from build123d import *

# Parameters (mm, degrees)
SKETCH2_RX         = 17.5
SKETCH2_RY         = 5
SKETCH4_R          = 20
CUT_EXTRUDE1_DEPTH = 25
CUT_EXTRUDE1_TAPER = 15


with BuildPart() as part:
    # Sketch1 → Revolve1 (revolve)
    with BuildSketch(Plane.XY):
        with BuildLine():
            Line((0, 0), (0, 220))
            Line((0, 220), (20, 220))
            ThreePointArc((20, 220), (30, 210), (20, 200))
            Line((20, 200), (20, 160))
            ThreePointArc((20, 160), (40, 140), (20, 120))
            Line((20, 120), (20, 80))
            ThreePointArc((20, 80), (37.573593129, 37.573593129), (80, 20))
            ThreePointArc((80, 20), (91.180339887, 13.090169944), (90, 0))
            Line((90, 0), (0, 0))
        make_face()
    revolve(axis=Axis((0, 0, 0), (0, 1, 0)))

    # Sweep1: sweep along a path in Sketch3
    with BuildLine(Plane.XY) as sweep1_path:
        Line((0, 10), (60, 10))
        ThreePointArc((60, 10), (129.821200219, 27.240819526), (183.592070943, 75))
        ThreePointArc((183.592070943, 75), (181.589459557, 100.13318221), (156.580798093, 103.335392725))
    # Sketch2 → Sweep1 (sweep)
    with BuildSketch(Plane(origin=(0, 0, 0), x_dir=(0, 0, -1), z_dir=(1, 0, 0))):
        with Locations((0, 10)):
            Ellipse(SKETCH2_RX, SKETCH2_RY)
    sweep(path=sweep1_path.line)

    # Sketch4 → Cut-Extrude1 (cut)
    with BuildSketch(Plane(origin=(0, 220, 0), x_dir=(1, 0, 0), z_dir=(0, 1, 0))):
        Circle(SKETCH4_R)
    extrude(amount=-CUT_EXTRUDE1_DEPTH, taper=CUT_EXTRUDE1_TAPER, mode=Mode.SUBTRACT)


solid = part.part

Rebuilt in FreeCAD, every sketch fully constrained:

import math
import FreeCAD as App
import Part
import Sketcher

doc = App.newDocument("Part")
params = doc.addObject("Spreadsheet::Sheet", "Params")
for row, (alias, value) in enumerate([
    ("sketch1_radius", "60 mm"),
    ("sketch1_radius2", "20 mm"),
    ("sketch1_radius3", "10 mm"),
    ("sketch1_radius4", "12.5 mm"),
    ("sketch1_width", "90 mm"),
    ("revolution_angle", "360 deg"),
    ("sketch3_radius", "150 mm"),
    ("sketch3_radius2", "20 mm"),
    ("sketch3_width", "60 mm"),
    ("sketch4_diameter", "40 mm"),
    ("pocket1_length", "25 mm"),
    ("pocket1_taper", "-15 deg"),
], start=1):
    params.set(f"A{row}", alias)
    params.set(f"B{row}", "=" + value)
    params.setAlias(f"B{row}", alias)

body = doc.addObject("PartDesign::Body", "Body")

sketch1 = doc.addObject("Sketcher::SketchObject", "Sketch")
body.addObject(sketch1)
sketch1.AttachmentSupport = (doc.XY_Plane, [""])
sketch1.MapMode = "FlatFace"
sketch1.addGeometry(Part.LineSegment(App.Vector(0, 220, 0), App.Vector(0, 0, 0)), False)
sketch1.addGeometry(Part.LineSegment(App.Vector(0, 0, 0), App.Vector(90, 0, 0)), False)
sketch1.addGeometry(Part.ArcOfCircle(Part.Circle(App.Vector(80, 8, 0), App.Vector(0, 0, 1), 12), math.radians(-37), math.radians(90)), False)
sketch1.addGeometry(Part.ArcOfCircle(Part.Circle(App.Vector(80, 80, 0), App.Vector(0, 0, 1), 60), math.radians(-180), math.radians(-90)), False)
sketch1.addGeometry(Part.LineSegment(App.Vector(20, 80, 0), App.Vector(20, 120, 0)), False)
sketch1.addGeometry(Part.ArcOfCircle(Part.Circle(App.Vector(20, 140, 0), App.Vector(0, 0, 1), 20), math.radians(-90), math.radians(90)), False)
sketch1.addGeometry(Part.LineSegment(App.Vector(20, 160, 0), App.Vector(20, 200, 0)), False)
sketch1.addGeometry(Part.ArcOfCircle(Part.Circle(App.Vector(20, 210, 0), App.Vector(0, 0, 1), 10), math.radians(-90), math.radians(90)), False)
sketch1.addGeometry(Part.LineSegment(App.Vector(20, 220, 0), App.Vector(0, 220, 0)), False)
sketch1.addConstraint(Sketcher.Constraint("Coincident", 0, 2, 1, 1))
sketch1.addConstraint(Sketcher.Constraint("Coincident", 1, 2, 2, 1))
sketch1.addConstraint(Sketcher.Constraint("Tangent", 2, 2, 3, 2))
sketch1.addConstraint(Sketcher.Constraint("Tangent", 3, 1, 4, 1))
sketch1.addConstraint(Sketcher.Constraint("Coincident", 4, 2, 5, 1))
sketch1.addConstraint(Sketcher.Constraint("Coincident", 5, 2, 6, 1))
sketch1.addConstraint(Sketcher.Constraint("Coincident", 6, 2, 7, 1))
sketch1.addConstraint(Sketcher.Constraint("Tangent", 7, 2, 8, 1))
sketch1.addConstraint(Sketcher.Constraint("Coincident", 8, 2, 0, 1))
sketch1.addConstraint(Sketcher.Constraint("Vertical", 0))
sketch1.addConstraint(Sketcher.Constraint("Horizontal", 1))
sketch1.addConstraint(Sketcher.Constraint("Vertical", 4))
sketch1.addConstraint(Sketcher.Constraint("Vertical", 6))
sketch1.addConstraint(Sketcher.Constraint("Horizontal", 8))
sketch1.addConstraint(Sketcher.Constraint("Coincident", 0, 2, -1, 1))
sketch1.addConstraint(Sketcher.Constraint("Vertical", 2, 3, 3, 3))
sketch1.addConstraint(Sketcher.Constraint("Vertical", 5, 3, 7, 3))
sketch1.addConstraint(Sketcher.Constraint("Vertical", 7, 3, 3, 1))
sketch1.addConstraint(Sketcher.Constraint("Vertical", 4, 2, 5, 2))
sketch1.addConstraint(Sketcher.Constraint("Equal", 4, 6))
sketch1.addConstraint(Sketcher.Constraint("Radius", 3, 60.0))
sketch1.addConstraint(Sketcher.Constraint("Radius", 5, 20.0))
sketch1.addConstraint(Sketcher.Constraint("Radius", 7, 10.0))
sketch1.addConstraint(Sketcher.Constraint("Radius", 2, 12.5))
sketch1.addConstraint(Sketcher.Constraint("DistanceX", 1, 1, 1, 2, 90.0))
sketch1.addConstraint(Sketcher.Constraint("DistanceX", 8, 2, 8, 1, 20.0))
sketch1.addConstraint(Sketcher.Constraint("DistanceY", 0, 2, 0, 1, 220.0))
sketch1.setExpression("Constraints[20]", "Params.sketch1_radius")
sketch1.setExpression("Constraints[21]", "Params.sketch1_radius2")
sketch1.setExpression("Constraints[22]", "Params.sketch1_radius3")
sketch1.setExpression("Constraints[23]", "Params.sketch1_radius4")
sketch1.setExpression("Constraints[24]", "Params.sketch1_width")
revolution = doc.addObject("PartDesign::Revolution", "Revolution")
body.addObject(revolution)
revolution.Profile = sketch1
revolution.ReferenceAxis = (sketch1, ["V_Axis"])
revolution.setExpression("Angle", "Params.revolution_angle")

sketch2 = doc.addObject("Sketcher::SketchObject", "Sketch001")
body.addObject(sketch2)
sketch2.AttachmentSupport = (doc.YZ_Plane, [""])
sketch2.MapMode = "FlatFace"
sketch2.addGeometry(Part.Ellipse(App.Vector(10, -17.5, 0), App.Vector(15, 0, 0), App.Vector(10, 0, 0)), False)
sketch2.addConstraint(Sketcher.Constraint("Block", 0))

sketch3 = doc.addObject("Sketcher::SketchObject", "Sketch002")
body.addObject(sketch3)
sketch3.AttachmentSupport = (doc.XY_Plane, [""])
sketch3.MapMode = "FlatFace"
sketch3.addGeometry(Part.LineSegment(App.Vector(0, 10, 0), App.Vector(60, 10, 0)), False)
sketch3.addGeometry(Part.ArcOfCircle(Part.Circle(App.Vector(60, 160, 0), App.Vector(0, 0, 1), 150), math.radians(-90), math.radians(-35)), False)
sketch3.addGeometry(Part.ArcOfCircle(Part.Circle(App.Vector(167, 86, 0), App.Vector(0, 0, 1), 20), math.radians(-35), math.radians(122)), False)
sketch3.addConstraint(Sketcher.Constraint("Tangent", 0, 2, 1, 1))
sketch3.addConstraint(Sketcher.Constraint("Tangent", 1, 2, 2, 1))
sketch3.addConstraint(Sketcher.Constraint("Horizontal", 0))
sketch3.addConstraint(Sketcher.Constraint("PointOnObject", 0, 1, -2))
sketch3.addConstraint(Sketcher.Constraint("Radius", 1, 150.0))
sketch3.addConstraint(Sketcher.Constraint("Radius", 2, 20.0))
sketch3.addConstraint(Sketcher.Constraint("DistanceX", 0, 1, 0, 2, 60.0))
sketch3.addConstraint(Sketcher.Constraint("DistanceY", -1, 1, 1, 3, 160.0))
sketch3.addConstraint(Sketcher.Constraint("DistanceY", -1, 1, 1, 2, 75.0))
sketch3.addConstraint(Sketcher.Constraint("DistanceX", -1, 1, 2, 2, 156.580798))
sketch3.setExpression("Constraints[4]", "Params.sketch3_radius")
sketch3.setExpression("Constraints[5]", "Params.sketch3_radius2")
sketch3.setExpression("Constraints[6]", "Params.sketch3_width")
doc.recompute()

additivepipe = doc.addObject("PartDesign::AdditivePipe", "AdditivePipe")
body.addObject(additivepipe)
additivepipe.Profile = sketch2
additivepipe.Spine = (sketch3, ["Edge1", "Edge2", "Edge3"])

sketch4 = doc.addObject("Sketcher::SketchObject", "Sketch003")
body.addObject(sketch4)
sketch4.AttachmentSupport = (doc.XZ_Plane, [""])
sketch4.MapMode = "FlatFace"
sketch4.AttachmentOffset = App.Placement(App.Vector(0, 0, -220), App.Rotation())
sketch4.addGeometry(Part.Circle(App.Vector(0, 0, 0), App.Vector(0, 0, 1), 20), False)
sketch4.addConstraint(Sketcher.Constraint("Coincident", 0, 3, -1, 1))
sketch4.addConstraint(Sketcher.Constraint("Diameter", 0, 40.0))
sketch4.setExpression("Constraints[1]", "Params.sketch4_diameter")
pocket1 = doc.addObject("PartDesign::Pocket", "Pocket")
body.addObject(pocket1)
pocket1.Profile = sketch4
pocket1.setExpression("Length", "Params.pocket1_length")
pocket1.Reversed = True
pocket1.setExpression("TaperAngle", "Params.pocket1_taper")

doc.recompute()
